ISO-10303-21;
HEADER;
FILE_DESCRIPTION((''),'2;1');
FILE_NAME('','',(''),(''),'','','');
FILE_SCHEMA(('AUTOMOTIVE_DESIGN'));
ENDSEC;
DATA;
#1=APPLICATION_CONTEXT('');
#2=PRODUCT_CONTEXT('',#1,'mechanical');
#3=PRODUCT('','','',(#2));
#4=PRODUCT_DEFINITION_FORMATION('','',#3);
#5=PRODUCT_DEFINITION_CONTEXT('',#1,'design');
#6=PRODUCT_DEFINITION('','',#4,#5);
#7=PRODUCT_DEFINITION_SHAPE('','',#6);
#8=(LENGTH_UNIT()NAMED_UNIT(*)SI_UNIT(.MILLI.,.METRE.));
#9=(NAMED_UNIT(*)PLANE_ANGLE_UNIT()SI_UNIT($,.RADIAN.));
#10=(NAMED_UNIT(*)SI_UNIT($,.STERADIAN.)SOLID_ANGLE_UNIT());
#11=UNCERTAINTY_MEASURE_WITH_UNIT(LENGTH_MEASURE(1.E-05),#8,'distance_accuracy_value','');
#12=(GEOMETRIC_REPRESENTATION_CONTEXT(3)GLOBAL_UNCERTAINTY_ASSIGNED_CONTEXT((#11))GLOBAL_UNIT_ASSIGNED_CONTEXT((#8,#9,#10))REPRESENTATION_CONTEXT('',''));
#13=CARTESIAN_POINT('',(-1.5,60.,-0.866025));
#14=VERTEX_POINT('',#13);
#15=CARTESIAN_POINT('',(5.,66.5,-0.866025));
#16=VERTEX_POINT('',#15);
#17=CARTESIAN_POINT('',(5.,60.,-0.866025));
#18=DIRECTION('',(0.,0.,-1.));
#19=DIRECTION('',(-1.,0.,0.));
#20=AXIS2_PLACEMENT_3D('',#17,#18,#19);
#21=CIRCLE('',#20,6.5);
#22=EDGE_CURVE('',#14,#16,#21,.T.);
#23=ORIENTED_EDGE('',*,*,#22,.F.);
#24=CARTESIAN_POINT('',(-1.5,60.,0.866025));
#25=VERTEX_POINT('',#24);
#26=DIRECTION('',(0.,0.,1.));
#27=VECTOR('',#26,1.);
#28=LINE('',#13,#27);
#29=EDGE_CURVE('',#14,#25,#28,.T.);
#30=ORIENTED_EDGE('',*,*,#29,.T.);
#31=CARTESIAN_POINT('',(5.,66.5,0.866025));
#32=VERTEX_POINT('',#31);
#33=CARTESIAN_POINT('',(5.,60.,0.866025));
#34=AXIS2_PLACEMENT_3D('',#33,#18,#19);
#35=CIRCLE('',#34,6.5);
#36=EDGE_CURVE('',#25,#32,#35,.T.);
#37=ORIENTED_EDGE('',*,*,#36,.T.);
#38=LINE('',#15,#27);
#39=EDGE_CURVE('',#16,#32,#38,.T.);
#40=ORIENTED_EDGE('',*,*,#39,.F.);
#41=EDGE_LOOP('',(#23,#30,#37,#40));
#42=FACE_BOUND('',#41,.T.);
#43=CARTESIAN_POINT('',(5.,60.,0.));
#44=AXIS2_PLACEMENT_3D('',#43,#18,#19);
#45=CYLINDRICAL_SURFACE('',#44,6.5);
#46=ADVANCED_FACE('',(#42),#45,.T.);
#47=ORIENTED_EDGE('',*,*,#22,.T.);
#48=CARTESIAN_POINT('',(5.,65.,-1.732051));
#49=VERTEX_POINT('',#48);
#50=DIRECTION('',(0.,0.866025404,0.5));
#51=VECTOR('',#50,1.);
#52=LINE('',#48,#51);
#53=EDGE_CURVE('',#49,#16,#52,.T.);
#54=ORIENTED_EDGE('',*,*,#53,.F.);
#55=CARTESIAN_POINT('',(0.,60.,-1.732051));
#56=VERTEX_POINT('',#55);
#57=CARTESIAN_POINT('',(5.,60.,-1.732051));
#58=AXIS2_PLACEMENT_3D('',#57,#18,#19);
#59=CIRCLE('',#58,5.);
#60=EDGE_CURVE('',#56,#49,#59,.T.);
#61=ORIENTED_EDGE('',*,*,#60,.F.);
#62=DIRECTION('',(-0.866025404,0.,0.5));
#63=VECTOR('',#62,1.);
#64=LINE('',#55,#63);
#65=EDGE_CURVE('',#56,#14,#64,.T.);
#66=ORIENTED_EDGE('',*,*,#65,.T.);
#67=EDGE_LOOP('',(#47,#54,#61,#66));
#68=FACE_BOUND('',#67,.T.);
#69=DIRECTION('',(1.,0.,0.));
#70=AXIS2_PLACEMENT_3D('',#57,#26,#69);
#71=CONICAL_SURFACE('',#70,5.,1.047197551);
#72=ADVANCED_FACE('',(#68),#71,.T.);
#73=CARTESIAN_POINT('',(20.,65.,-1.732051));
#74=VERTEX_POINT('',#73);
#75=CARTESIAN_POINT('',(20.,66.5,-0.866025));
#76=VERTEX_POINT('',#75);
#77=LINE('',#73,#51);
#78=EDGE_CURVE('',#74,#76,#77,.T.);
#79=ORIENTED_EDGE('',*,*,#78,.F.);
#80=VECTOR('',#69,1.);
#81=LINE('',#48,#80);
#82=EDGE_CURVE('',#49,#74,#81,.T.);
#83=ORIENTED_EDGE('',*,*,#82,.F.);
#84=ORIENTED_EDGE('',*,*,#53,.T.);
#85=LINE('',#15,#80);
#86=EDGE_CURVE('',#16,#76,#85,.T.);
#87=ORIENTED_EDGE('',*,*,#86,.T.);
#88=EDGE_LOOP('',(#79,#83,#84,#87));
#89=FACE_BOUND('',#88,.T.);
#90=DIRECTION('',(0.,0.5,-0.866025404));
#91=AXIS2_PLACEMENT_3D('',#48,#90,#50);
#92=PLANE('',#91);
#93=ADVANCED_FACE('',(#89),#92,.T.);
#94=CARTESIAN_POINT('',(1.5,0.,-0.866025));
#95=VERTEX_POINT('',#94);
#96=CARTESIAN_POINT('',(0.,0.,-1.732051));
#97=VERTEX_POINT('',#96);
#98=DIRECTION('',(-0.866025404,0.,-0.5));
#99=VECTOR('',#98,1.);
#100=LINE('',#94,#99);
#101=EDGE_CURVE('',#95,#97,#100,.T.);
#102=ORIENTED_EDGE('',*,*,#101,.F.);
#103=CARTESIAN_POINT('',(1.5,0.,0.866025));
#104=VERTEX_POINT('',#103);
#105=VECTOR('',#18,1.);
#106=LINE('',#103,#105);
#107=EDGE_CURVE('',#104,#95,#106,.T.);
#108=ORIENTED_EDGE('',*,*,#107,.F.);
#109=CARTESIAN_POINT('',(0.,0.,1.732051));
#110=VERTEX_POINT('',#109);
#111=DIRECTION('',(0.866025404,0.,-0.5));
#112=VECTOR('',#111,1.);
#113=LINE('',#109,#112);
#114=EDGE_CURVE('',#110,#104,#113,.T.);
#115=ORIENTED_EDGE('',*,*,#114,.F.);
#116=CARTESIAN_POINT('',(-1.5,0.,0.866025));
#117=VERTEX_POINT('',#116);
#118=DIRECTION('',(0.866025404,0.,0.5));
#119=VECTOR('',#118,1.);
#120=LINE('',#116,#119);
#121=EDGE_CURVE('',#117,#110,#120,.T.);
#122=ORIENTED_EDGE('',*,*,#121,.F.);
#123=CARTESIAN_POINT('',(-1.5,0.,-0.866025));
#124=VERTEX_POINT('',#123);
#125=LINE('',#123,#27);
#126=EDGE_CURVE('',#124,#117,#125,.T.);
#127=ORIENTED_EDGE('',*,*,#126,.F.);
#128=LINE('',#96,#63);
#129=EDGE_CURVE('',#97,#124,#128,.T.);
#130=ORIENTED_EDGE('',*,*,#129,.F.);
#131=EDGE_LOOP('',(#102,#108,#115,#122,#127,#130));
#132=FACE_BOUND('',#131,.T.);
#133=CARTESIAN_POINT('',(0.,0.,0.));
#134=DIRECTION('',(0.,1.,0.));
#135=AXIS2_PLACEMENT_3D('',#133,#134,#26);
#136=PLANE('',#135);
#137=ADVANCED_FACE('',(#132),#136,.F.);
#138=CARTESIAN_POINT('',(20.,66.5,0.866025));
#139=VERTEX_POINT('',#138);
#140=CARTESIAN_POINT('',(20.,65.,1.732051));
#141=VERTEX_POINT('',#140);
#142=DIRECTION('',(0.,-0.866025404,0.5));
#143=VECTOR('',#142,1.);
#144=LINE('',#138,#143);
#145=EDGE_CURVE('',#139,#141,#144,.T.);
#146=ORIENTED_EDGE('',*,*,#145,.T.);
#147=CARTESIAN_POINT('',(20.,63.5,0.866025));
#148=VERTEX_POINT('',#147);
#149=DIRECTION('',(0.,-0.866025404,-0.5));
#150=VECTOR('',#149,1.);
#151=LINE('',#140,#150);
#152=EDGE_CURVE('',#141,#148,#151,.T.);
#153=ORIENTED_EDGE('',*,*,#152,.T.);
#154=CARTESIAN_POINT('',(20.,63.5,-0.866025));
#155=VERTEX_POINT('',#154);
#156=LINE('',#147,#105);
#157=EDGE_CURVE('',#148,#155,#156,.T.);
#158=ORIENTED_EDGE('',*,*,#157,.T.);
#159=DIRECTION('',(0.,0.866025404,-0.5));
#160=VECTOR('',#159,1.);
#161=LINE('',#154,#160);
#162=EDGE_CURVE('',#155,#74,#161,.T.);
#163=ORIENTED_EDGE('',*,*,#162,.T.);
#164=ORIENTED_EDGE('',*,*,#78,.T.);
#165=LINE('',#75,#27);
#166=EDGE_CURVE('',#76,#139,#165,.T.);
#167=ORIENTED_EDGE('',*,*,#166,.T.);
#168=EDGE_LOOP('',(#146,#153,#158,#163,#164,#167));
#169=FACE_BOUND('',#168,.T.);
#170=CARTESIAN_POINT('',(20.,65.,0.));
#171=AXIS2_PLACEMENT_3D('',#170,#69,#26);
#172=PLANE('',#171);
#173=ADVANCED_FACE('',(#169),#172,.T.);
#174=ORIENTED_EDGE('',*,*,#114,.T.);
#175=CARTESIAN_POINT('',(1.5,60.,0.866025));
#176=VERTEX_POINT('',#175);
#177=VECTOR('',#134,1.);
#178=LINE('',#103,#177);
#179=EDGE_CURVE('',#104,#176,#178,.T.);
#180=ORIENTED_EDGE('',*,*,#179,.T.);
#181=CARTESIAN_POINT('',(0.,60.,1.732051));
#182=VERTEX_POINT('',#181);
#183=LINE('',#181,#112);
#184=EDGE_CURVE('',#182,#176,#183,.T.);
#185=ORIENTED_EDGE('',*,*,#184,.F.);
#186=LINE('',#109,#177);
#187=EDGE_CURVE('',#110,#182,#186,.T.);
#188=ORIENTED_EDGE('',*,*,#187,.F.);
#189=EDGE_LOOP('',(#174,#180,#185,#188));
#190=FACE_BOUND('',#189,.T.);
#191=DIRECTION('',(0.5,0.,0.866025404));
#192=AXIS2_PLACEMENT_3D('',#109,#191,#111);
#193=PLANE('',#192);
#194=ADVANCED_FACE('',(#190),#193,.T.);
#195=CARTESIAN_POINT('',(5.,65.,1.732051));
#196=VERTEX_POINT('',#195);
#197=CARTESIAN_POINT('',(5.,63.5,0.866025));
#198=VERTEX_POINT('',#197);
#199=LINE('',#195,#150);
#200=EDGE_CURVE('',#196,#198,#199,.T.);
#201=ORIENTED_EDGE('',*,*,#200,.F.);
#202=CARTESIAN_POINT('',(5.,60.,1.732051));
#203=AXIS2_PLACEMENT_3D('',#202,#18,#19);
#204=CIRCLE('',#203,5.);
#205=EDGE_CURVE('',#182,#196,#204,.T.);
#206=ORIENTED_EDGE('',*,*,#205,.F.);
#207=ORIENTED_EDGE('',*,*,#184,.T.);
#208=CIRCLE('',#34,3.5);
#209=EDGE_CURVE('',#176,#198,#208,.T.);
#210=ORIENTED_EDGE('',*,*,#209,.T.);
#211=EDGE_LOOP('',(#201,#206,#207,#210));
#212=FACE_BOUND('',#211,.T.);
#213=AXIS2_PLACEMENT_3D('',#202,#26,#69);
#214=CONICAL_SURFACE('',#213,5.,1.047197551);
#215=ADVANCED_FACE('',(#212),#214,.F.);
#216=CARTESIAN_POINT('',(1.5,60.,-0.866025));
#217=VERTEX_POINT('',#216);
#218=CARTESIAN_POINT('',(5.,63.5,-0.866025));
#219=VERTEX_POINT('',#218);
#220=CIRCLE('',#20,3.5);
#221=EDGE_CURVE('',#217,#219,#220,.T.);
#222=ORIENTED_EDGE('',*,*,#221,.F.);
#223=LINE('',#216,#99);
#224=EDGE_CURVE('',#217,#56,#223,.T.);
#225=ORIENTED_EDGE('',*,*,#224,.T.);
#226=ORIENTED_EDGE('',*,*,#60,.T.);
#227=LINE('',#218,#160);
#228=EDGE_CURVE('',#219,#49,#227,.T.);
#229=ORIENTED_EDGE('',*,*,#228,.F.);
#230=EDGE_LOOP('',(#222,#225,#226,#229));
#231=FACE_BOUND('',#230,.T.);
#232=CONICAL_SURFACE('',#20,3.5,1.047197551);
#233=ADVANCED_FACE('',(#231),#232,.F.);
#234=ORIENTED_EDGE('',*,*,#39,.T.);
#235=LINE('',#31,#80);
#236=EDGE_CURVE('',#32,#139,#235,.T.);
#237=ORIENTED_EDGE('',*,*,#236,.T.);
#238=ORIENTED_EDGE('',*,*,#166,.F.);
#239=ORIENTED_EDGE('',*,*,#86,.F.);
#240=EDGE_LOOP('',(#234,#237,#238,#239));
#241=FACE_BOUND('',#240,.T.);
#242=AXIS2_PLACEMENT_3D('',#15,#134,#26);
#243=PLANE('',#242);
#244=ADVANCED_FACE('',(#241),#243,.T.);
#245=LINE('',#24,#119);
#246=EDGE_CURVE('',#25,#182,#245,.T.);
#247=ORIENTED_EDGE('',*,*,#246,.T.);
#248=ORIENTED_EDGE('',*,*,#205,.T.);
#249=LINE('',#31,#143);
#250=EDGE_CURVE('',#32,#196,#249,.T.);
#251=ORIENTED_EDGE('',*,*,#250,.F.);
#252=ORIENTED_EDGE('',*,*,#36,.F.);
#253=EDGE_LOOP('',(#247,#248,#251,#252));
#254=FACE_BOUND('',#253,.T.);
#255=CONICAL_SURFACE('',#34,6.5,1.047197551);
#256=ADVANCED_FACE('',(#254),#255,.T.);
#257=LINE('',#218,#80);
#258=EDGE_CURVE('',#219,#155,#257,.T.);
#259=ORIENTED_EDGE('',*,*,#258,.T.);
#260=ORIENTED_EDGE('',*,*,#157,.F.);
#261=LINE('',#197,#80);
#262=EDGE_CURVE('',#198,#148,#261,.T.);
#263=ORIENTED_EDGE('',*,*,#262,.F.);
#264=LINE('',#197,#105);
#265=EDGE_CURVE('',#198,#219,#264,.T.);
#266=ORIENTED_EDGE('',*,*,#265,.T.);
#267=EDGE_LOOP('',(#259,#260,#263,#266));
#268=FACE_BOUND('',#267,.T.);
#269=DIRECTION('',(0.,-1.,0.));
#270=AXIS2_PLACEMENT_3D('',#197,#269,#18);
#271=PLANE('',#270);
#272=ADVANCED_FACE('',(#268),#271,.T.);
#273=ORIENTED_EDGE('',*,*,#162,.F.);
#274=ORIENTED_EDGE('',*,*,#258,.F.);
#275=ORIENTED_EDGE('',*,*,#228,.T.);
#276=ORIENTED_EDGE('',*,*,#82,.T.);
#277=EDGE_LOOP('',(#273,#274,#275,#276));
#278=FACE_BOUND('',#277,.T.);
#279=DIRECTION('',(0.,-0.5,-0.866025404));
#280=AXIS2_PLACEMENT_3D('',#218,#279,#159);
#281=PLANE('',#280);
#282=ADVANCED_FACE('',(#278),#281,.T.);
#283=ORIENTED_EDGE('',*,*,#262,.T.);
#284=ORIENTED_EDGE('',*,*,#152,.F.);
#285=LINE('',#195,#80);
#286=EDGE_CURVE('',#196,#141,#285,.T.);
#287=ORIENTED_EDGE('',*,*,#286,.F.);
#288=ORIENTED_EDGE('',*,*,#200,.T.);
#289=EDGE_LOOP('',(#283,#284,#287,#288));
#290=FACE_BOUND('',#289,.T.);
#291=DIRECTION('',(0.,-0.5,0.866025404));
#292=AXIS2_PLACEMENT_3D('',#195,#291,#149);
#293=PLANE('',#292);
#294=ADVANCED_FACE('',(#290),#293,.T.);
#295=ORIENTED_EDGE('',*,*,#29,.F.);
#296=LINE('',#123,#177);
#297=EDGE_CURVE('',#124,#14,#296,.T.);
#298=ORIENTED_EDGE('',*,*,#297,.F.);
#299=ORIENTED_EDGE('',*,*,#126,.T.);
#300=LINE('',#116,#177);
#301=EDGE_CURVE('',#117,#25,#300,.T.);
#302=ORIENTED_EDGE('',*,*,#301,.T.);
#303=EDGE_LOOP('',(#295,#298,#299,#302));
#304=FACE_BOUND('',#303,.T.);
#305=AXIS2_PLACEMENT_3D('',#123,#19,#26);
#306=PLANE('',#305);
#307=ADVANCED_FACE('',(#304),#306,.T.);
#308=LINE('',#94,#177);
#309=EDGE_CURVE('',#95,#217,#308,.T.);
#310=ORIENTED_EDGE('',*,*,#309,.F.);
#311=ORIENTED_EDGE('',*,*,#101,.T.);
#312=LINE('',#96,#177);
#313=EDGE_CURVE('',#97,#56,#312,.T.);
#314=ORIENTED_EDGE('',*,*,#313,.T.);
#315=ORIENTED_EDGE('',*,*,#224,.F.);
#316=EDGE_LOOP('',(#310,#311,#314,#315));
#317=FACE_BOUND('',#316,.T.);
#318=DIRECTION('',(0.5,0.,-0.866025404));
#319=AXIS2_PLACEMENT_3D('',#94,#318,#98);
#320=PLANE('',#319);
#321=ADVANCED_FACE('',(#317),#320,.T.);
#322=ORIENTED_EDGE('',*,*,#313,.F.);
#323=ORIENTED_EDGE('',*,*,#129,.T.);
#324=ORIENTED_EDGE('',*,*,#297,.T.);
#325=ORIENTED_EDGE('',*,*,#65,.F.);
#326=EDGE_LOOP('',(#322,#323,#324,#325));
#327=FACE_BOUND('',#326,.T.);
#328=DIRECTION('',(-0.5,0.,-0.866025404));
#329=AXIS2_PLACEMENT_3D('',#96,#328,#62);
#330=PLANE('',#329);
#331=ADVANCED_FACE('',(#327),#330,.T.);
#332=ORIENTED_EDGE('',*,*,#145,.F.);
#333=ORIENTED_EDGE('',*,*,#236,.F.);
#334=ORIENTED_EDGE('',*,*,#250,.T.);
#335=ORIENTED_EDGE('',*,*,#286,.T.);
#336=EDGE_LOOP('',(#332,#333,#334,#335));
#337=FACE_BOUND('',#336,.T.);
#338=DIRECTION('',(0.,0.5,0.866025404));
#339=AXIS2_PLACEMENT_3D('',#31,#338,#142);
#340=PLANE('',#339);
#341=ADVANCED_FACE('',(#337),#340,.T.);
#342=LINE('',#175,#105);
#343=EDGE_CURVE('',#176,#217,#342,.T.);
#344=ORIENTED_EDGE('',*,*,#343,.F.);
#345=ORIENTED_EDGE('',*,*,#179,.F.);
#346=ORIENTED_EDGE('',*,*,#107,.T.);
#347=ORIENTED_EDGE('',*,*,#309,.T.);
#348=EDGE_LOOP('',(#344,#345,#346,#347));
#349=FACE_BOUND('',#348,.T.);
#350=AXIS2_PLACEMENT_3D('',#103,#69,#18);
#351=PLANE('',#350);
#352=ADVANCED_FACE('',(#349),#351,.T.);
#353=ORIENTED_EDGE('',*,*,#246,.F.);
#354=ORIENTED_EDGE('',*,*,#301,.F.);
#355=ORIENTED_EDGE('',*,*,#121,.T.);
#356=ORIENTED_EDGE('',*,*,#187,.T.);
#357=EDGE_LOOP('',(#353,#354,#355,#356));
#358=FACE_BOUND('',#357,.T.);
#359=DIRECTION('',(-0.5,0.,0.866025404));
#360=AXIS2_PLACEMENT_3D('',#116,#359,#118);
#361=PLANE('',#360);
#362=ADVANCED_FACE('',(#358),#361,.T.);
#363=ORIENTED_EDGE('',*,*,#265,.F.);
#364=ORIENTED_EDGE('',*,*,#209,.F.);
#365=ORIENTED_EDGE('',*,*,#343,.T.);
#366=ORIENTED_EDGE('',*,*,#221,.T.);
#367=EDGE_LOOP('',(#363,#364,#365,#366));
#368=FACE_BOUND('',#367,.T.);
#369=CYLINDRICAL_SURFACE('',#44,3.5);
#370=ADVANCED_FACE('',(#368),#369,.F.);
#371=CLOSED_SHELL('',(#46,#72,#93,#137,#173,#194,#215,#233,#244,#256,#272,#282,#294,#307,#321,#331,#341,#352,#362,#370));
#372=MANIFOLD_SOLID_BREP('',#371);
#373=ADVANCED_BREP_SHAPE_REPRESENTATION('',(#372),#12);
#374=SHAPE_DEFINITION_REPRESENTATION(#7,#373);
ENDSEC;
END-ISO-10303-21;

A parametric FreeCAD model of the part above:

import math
import FreeCAD as App
import Part
import Sketcher
from FreeCAD import Vector
Q = App.Units.Quantity

doc = App.newDocument("Part")
params = doc.addObject("Spreadsheet::Sheet", "Params")
for row, (alias, value) in enumerate([
    ("sketch2_radius", "5 mm"),
    ("sketch2_width", "15 mm"),
    ("sketch2_height", "60 mm"),
], start=1):
    params.set(f"A{row}", alias)
    params.set(f"B{row}", "=" + value)
    params.setAlias(f"B{row}", alias)

body = doc.addObject("PartDesign::Body", "Body")

# Sketch on XZ plane
sketch1 = body.newObject("Sketcher::SketchObject", "Sketch")
sketch1.AttachmentSupport = (doc.getObject("XZ_Plane"), [""])
sketch1.MapMode = "FlatFace"
sketch1.addGeometry([
    Part.LineSegment(Vector(1.5, -0.9, 0), Vector(0, -1.7, 0)),  # 0
    Part.LineSegment(Vector(0, -1.7, 0), Vector(-1.5, -0.9, 0)),  # 1
    Part.LineSegment(Vector(-1.5, -0.9, 0), Vector(-1.5, 0.9, 0)),  # 2
    Part.LineSegment(Vector(-1.5, 0.9, 0), Vector(0, 1.7, 0)),  # 3
    Part.LineSegment(Vector(0, 1.7, 0), Vector(1.5, 0.9, 0)),  # 4
    Part.LineSegment(Vector(1.5, 0.9, 0), Vector(1.5, -0.9, 0)),  # 5
], False)
sketch1.addConstraint([
    Sketcher.Constraint("Coincident", 0, 2, 1, 1),
    Sketcher.Constraint("Coincident", 1, 2, 2, 1),
    Sketcher.Constraint("Coincident", 2, 2, 3, 1),
    Sketcher.Constraint("Coincident", 3, 2, 4, 1),
    Sketcher.Constraint("Coincident", 4, 2, 5, 1),
    Sketcher.Constraint("Coincident", 5, 2, 0, 1),
    Sketcher.Constraint("Vertical", 2),
    Sketcher.Constraint("Vertical", 5),
    Sketcher.Constraint("Symmetric", 0, 2, 3, 2, -1, 1),
    Sketcher.Constraint("Symmetric", 1, 2, 4, 2, -1, 1),
    Sketcher.Constraint("PointOnObject", 0, 2, -2),
    Sketcher.Constraint("Parallel", 0, 3),
    Sketcher.Constraint("Horizontal", 2, 2, 4, 2),
    Sketcher.Constraint("Angle", 0, Q("-150 deg")),
    Sketcher.Constraint("DistanceX", 2, 2, 4, 2, 3.0),
    Sketcher.Constraint("DistanceY", 2, 1, 2, 2, 1.732051),
])

# Sketch on XY plane
sketch2 = body.newObject("Sketcher::SketchObject", "Sketch001")
sketch2.AttachmentSupport = (doc.getObject("XY_Plane"), [""])
sketch2.MapMode = "FlatFace"
sketch2.addGeometry([
    Part.LineSegment(Vector(0, 0, 0), Vector(0, 60, 0)),
    Part.ArcOfCircle(Part.Circle(Vector(5, 60, 0), Vector(0, 0, 1), 5), math.radians(90), math.radians(180)),
    Part.LineSegment(Vector(5, 65, 0), Vector(20, 65, 0)),
], False)
sketch2.addConstraint([
    Sketcher.Constraint("Tangent", 0, 2, 1, 2),
    Sketcher.Constraint("Tangent", 1, 1, 2, 1),
    Sketcher.Constraint("Vertical", 0),
    Sketcher.Constraint("Horizontal", 2),
    Sketcher.Constraint("Coincident", 0, 1, -1, 1),
    Sketcher.Constraint("Radius", 1, 5.0),
    Sketcher.Constraint("DistanceX", 2, 1, 2, 2, 15.0),
    Sketcher.Constraint("DistanceY", 0, 1, 0, 2, 60.0),
])
sketch2.setExpression("Constraints[5]", "Params.sketch2_radius")
sketch2.setExpression("Constraints[6]", "Params.sketch2_width")
sketch2.setExpression("Constraints[7]", "Params.sketch2_height")
doc.recompute()

additivepipe = body.newObject("PartDesign::AdditivePipe", "AdditivePipe")
additivepipe.Profile = sketch1
additivepipe.Spine = (sketch2, ["Edge1", "Edge2", "Edge3"])

doc.recompute()
